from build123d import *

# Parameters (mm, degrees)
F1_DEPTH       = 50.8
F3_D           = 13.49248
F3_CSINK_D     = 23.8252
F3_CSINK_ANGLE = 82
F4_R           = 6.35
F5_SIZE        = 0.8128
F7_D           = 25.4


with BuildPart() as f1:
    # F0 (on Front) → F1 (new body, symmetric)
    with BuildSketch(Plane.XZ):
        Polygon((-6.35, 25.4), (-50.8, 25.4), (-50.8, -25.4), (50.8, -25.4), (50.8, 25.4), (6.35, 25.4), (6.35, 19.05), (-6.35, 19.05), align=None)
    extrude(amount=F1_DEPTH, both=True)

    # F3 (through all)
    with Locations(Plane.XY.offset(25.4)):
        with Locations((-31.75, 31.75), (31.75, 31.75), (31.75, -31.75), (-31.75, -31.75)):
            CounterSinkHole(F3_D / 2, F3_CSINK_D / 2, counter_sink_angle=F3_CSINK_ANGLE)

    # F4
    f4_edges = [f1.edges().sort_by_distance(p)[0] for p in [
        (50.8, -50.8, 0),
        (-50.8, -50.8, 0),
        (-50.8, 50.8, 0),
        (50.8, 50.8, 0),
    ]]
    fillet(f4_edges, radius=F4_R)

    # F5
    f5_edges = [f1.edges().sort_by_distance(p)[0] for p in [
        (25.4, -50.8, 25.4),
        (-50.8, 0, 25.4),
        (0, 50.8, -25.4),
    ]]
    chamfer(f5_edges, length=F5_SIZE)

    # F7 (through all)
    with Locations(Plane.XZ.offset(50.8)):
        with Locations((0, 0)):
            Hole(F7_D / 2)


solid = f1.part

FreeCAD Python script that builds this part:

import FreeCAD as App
import Part
import Sketcher
Q = App.Units.Quantity


def edges_at(feature, points):
    """Names of the edges that pass closest to the given points."""
    edges = feature.Shape.Edges
    near = lambda p: min(range(len(edges)), key=lambda i: edges[i].distToShape(Part.Vertex(*p))[0])
    return sorted({f"Edge{near(p) + 1}" for p in points})

doc = App.newDocument("Part")
body = doc.addObject("PartDesign::Body", "Body")

sketch1 = body.newObject("Sketcher::SketchObject", "Sketch")
sketch1.AttachmentSupport = (doc.getObject("XZ_Plane"), [""])
sketch1.MapMode = "FlatFace"
sketch1.addGeometry(Part.LineSegment(App.Vector(-6.35, 25.4, 0), App.Vector(-50.8, 25.4, 0)), False)
sketch1.addGeometry(Part.LineSegment(App.Vector(-50.8, 25.4, 0), App.Vector(-50.8, -25.4, 0)), False)
sketch1.addGeometry(Part.LineSegment(App.Vector(-50.8, -25.4, 0), App.Vector(50.8, -25.4, 0)), False)
sketch1.addGeometry(Part.LineSegment(App.Vector(50.8, -25.4, 0), App.Vector(50.8, 25.4, 0)), False)
sketch1.addGeometry(Part.LineSegment(App.Vector(50.8, 25.4, 0), App.Vector(6.35, 25.4, 0)), False)
sketch1.addGeometry(Part.LineSegment(App.Vector(6.35, 25.4, 0), App.Vector(6.35, 19.05, 0)), False)
sketch1.addGeometry(Part.LineSegment(App.Vector(6.35, 19.05, 0), App.Vector(-6.35, 19.05, 0)), False)
sketch1.addGeometry(Part.LineSegment(App.Vector(-6.35, 19.05, 0), App.Vector(-6.35, 25.4, 0)), False)
sketch1.addConstraint(Sketcher.Constraint("Coincident", 0, 2, 1, 1))
sketch1.addConstraint(Sketcher.Constraint("Coincident", 1, 2, 2, 1))
sketch1.addConstraint(Sketcher.Constraint("Coincident", 2, 2, 3, 1))
sketch1.addConstraint(Sketcher.Constraint("Coincident", 3, 2, 4, 1))
sketch1.addConstraint(Sketcher.Constraint("Coincident", 4, 2, 5, 1))
sketch1.addConstraint(Sketcher.Constraint("Coincident", 5, 2, 6, 1))
sketch1.addConstraint(Sketcher.Constraint("Coincident", 6, 2, 7, 1))
sketch1.addConstraint(Sketcher.Constraint("Coincident", 7, 2, 0, 1))
sketch1.addConstraint(Sketcher.Constraint("Horizontal", 0))
sketch1.addConstraint(Sketcher.Constraint("Vertical", 1))
sketch1.addConstraint(Sketcher.Constraint("Horizontal", 2))
sketch1.addConstraint(Sketcher.Constraint("Vertical", 3))
sketch1.addConstraint(Sketcher.Constraint("Horizontal", 4))
sketch1.addConstraint(Sketcher.Constraint("Vertical", 5))
sketch1.addConstraint(Sketcher.Constraint("Horizontal", 6))
sketch1.addConstraint(Sketcher.Constraint("Vertical", 7))
sketch1.addConstraint(Sketcher.Constraint("Symmetric", 0, 2, 2, 2, -1, 1))
sketch1.addConstraint(Sketcher.Constraint("Symmetric", 4, 2, 7, 2, -2))
sketch1.addConstraint(Sketcher.Constraint("DistanceX", 2, 1, 2, 2, Q("4 in")))
sketch1.addConstraint(Sketcher.Constraint("DistanceY", 1, 2, 1, 1, Q("2 in")))
sketch1.addConstraint(Sketcher.Constraint("DistanceX", 6, 2, 6, 1, Q("0.5 in")))
sketch1.addConstraint(Sketcher.Constraint("DistanceY", 5, 2, 5, 1, Q("0.25 in")))
pad1 = body.newObject("PartDesign::Pad", "Pad")
pad1.Profile = sketch1
pad1.Length = Q("4 in")
pad1.Midplane = True

sketch2 = body.newObject("Sketcher::SketchObject", "Sketch001")
sketch2.AttachmentSupport = (doc.getObject("XY_Plane"), [""])
sketch2.MapMode = "FlatFace"
sketch2.AttachmentOffset = App.Placement(App.Vector(0, 0, 1 * 25.4), App.Rotation())
sketch2.addGeometry(Part.Circle(App.Vector(-31.75, 31.75, 0), App.Vector(0, 0, 1), 6.74624), False)
sketch2.addGeometry(Part.Circle(App.Vector(31.75, 31.75, 0), App.Vector(0, 0, 1), 6.74624), False)
sketch2.addGeometry(Part.Circle(App.Vector(31.75, -31.75, 0), App.Vector(0, 0, 1), 6.74624), False)
sketch2.addGeometry(Part.Circle(App.Vector(-31.75, -31.75, 0), App.Vector(0, 0, 1), 6.74624), False)
sketch2.addConstraint(Sketcher.Constraint("Equal", 0, 1))
sketch2.addConstraint(Sketcher.Constraint("Equal", 1, 2))
sketch2.addConstraint(Sketcher.Constraint("Equal", 2, 3))
sketch2.addConstraint(Sketcher.Constraint("Symmetric", 0, 3, 2, 3, -1, 1))
sketch2.addConstraint(Sketcher.Constraint("Symmetric", 1, 3, 3, 3, -1, 1))
sketch2.addConstraint(Sketcher.Constraint("Symmetric", 0, 3, 1, 3, -2))
sketch2.addConstraint(Sketcher.Constraint("Diameter", 0, Q("0.5312 in")))
sketch2.addConstraint(Sketcher.Constraint("DistanceX", 0, 3, 1, 3, Q("2.5 in")))
sketch2.addConstraint(Sketcher.Constraint("DistanceY", 2, 3, 1, 3, Q("2.5 in")))
doc.recompute()
hole = body.newObject("PartDesign::Hole", "Hole")
hole.Profile = sketch2
hole.ThreadType = "None"
hole.Diameter = Q("0.5312 in")
hole.DepthType = "ThroughAll"
hole.HoleCutType = "Countersink"
hole.HoleCutDiameter = Q("0.938 in")
hole.HoleCutCountersinkAngle = 82
doc.recompute()

fillet = body.newObject("PartDesign::Fillet", "Fillet")
fillet.Base = (hole, edges_at(hole, [
    (50.8, -50.8, 0),
    (-50.8, -50.8, 0),
    (-50.8, 50.8, 0),
    (50.8, 50.8, 0),
]))
fillet.Radius = Q("0.25 in")
doc.recompute()

chamfer = body.newObject("PartDesign::Chamfer", "Chamfer")
chamfer.Base = (fillet, edges_at(fillet, [(25.4, -50.8, 25.4), (-50.8, 0, 25.4), (0, 50.8, -25.4)]))
chamfer.Size = Q("0.032 in")

sketch3 = body.newObject("Sketcher::SketchObject", "Sketch002")
sketch3.AttachmentSupport = (doc.getObject("XZ_Plane"), [""])
sketch3.MapMode = "FlatFace"
sketch3.AttachmentOffset = App.Placement(App.Vector(0, 0, 2 * 25.4), App.Rotation())
sketch3.addGeometry(Part.Circle(App.Vector(0, 0, 0), App.Vector(0, 0, 1), 12.7), False)
sketch3.addConstraint(Sketcher.Constraint("Coincident", 0, 3, -1, 1))
sketch3.addConstraint(Sketcher.Constraint("Diameter", 0, Q("1 in")))
doc.recompute()
hole2 = body.newObject("PartDesign::Hole", "Hole001")
hole2.Profile = sketch3
hole2.ThreadType = "None"
hole2.Diameter = Q("1 in")
hole2.DepthType = "ThroughAll"

doc.recompute()
